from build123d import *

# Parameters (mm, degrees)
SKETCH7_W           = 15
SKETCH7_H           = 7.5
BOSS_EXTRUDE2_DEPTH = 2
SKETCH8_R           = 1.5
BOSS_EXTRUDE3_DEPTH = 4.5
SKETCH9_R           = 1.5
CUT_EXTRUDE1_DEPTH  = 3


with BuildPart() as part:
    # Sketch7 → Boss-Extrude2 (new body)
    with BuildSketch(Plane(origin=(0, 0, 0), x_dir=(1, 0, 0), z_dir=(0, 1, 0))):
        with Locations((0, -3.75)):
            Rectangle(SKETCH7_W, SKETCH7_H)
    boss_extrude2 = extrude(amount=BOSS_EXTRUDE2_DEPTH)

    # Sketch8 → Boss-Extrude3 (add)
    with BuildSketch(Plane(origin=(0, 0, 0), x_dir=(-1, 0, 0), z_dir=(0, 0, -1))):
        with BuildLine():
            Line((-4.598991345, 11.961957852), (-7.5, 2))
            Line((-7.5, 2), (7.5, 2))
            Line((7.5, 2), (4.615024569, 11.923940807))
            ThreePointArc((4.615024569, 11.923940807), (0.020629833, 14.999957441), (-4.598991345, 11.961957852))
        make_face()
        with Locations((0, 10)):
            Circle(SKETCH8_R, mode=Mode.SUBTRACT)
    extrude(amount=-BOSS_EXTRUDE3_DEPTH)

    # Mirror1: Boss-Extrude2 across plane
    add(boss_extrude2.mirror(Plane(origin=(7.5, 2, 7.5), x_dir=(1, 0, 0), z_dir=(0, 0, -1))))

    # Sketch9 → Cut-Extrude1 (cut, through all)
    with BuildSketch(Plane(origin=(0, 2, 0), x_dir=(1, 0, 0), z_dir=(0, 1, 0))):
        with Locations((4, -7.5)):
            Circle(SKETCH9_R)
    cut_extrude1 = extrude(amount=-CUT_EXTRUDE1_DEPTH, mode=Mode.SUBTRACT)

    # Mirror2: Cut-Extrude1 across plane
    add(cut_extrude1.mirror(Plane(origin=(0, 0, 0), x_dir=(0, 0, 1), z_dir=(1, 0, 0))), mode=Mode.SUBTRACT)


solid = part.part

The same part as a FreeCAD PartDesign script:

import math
import FreeCAD as App
import Part
import Sketcher

V = App.Vector
Q = App.Units.Quantity

doc = App.newDocument("Part")
body = doc.addObject("PartDesign::Body", "Body")

# Sketch on XZ plane
sketch1 = body.newObject("Sketcher::SketchObject", "Sketch")
sketch1.AttachmentSupport = (doc.getObject("XZ_Plane"), [""])
sketch1.MapMode = "FlatFace"
sketch1.addGeometry(Part.LineSegment(V(-7.5, 0, 0), V(-7.5, 7.5, 0)), False)
sketch1.addGeometry(Part.LineSegment(V(-7.5, 7.5, 0), V(7.5, 7.5, 0)), False)
sketch1.addGeometry(Part.LineSegment(V(7.5, 7.5, 0), V(7.5, 0, 0)), False)
sketch1.addGeometry(Part.LineSegment(V(7.5, 0, 0), V(-7.5, 0, 0)), False)
sketch1.addConstraint(Sketcher.Constraint("Coincident", 0, 2, 1, 1))
sketch1.addConstraint(Sketcher.Constraint("Coincident", 1, 2, 2, 1))
sketch1.addConstraint(Sketcher.Constraint("Coincident", 2, 2, 3, 1))
sketch1.addConstraint(Sketcher.Constraint("Coincident", 3, 2, 0, 1))
sketch1.addConstraint(Sketcher.Constraint("Vertical", 0))
sketch1.addConstraint(Sketcher.Constraint("Horizontal", 1))
sketch1.addConstraint(Sketcher.Constraint("Vertical", 2))
sketch1.addConstraint(Sketcher.Constraint("Horizontal", 3))
sketch1.addConstraint(Sketcher.Constraint("Symmetric", 2, 2, 3, 2, -1, 1))
sketch1.addConstraint(Sketcher.Constraint("DistanceX", 1, 1, 1, 2, Q("15 mm")))
sketch1.addConstraint(Sketcher.Constraint("DistanceY", 0, 1, 0, 2, Q("7.5 mm")))
pad1 = body.newObject("PartDesign::Pad", "Pad")
pad1.Profile = sketch1
pad1.Length = 2
pad1.Reversed = True

# Sketch on XY plane
sketch2 = body.newObject("Sketcher::SketchObject", "Sketch001")
sketch2.AttachmentSupport = (doc.getObject("XY_Plane"), [""])
sketch2.MapMode = "FlatFace"
sketch2.addGeometry(Part.LineSegment(V(4.598991, 11.961958, 0), V(7.5, 2, 0)), False)
sketch2.addGeometry(Part.LineSegment(V(7.5, 2, 0), V(-7.5, 2, 0)), False)
sketch2.addGeometry(Part.LineSegment(V(-7.5, 2, 0), V(-4.615025, 11.923941, 0)), False)
sketch2.addGeometry(Part.ArcOfCircle(Part.Circle(V(0, 10, 0), V(0, 0, 1), 5), math.radians(23.103392), math.radians(157.36941)), False)
sketch2.addGeometry(Part.Circle(V(0, 10, 0), V(0, 0, 1), 1.5), False)
sketch2.addConstraint(Sketcher.Constraint("Coincident", 0, 2, 1, 1))
sketch2.addConstraint(Sketcher.Constraint("Coincident", 1, 2, 2, 1))
sketch2.addConstraint(Sketcher.Constraint("Coincident", 2, 2, 3, 2))
sketch2.addConstraint(Sketcher.Constraint("Coincident", 3, 1, 0, 1))
sketch2.addConstraint(Sketcher.Constraint("Horizontal", 1))
sketch2.addConstraint(Sketcher.Constraint("Coincident", 4, 3, 3, 3))
sketch2.addConstraint(Sketcher.Constraint("PointOnObject", 3, 3, -2))
sketch2.addConstraint(Sketcher.Constraint("Diameter", 4, Q("3 mm")))
sketch2.addConstraint(Sketcher.Constraint("Radius", 3, Q("5 mm")))
sketch2.addConstraint(Sketcher.Constraint("DistanceX", 1, 2, 1, 1, Q("15 mm")))
sketch2.addConstraint(Sketcher.Constraint("DistanceY", -1, 1, 3, 3, Q("10 mm")))
sketch2.addConstraint(Sketcher.Constraint("DistanceY", -1, 1, 0, 2, Q("2 mm")))
sketch2.addConstraint(Sketcher.Constraint("DistanceX", -1, 1, 0, 2, Q("7.5 mm")))
sketch2.addConstraint(Sketcher.Constraint("Distance", 2, Q("10.33478 mm")))
sketch2.addConstraint(Sketcher.Constraint("DistanceX", -1, 1, 3, 1, Q("4.598991 mm")))
pad2 = body.newObject("PartDesign::Pad", "Pad001")
pad2.Profile = sketch2
pad2.Length = 4.5
doc.recompute()

datumplane = body.newObject("PartDesign::Plane", "DatumPlane")
datumplane.AttachmentSupport = (doc.getObject("XY_Plane"), [""])
datumplane.MapMode = "FlatFace"
datumplane.AttachmentOffset = App.Placement(V(0, 0, 7.5), App.Rotation())
mirrored = body.newObject("PartDesign::Mirrored", "Mirrored")
mirrored.Originals = [pad1]
mirrored.MirrorPlane = (datumplane, [""])
body.Tip = mirrored

# Sketch on XZ plane
sketch3 = body.newObject("Sketcher::SketchObject", "Sketch002")
sketch3.AttachmentSupport = (doc.getObject("XZ_Plane"), [""])
sketch3.MapMode = "FlatFace"
sketch3.AttachmentOffset = App.Placement(V(0, 0, -2), App.Rotation())
sketch3.addGeometry(Part.Circle(V(4, 7.5, 0), V(0, 0, 1), 1.5), False)
sketch3.addConstraint(Sketcher.Constraint("Diameter", 0, Q("3 mm")))
sketch3.addConstraint(Sketcher.Constraint("DistanceX", -1, 1, 0, 3, Q("4 mm")))
sketch3.addConstraint(Sketcher.Constraint("DistanceY", -1, 1, 0, 3, Q("7.5 mm")))
pocket1 = body.newObject("PartDesign::Pocket", "Pocket")
pocket1.Profile = sketch3
pocket1.Type = "ThroughAll"
pocket1.Reversed = True
doc.recompute()

mirrored2 = body.newObject("PartDesign::Mirrored", "Mirrored001")
mirrored2.Originals = [pocket1]
mirrored2.MirrorPlane = (doc.getObject("YZ_Plane"), [""])
body.Tip = mirrored2

doc.recompute()
